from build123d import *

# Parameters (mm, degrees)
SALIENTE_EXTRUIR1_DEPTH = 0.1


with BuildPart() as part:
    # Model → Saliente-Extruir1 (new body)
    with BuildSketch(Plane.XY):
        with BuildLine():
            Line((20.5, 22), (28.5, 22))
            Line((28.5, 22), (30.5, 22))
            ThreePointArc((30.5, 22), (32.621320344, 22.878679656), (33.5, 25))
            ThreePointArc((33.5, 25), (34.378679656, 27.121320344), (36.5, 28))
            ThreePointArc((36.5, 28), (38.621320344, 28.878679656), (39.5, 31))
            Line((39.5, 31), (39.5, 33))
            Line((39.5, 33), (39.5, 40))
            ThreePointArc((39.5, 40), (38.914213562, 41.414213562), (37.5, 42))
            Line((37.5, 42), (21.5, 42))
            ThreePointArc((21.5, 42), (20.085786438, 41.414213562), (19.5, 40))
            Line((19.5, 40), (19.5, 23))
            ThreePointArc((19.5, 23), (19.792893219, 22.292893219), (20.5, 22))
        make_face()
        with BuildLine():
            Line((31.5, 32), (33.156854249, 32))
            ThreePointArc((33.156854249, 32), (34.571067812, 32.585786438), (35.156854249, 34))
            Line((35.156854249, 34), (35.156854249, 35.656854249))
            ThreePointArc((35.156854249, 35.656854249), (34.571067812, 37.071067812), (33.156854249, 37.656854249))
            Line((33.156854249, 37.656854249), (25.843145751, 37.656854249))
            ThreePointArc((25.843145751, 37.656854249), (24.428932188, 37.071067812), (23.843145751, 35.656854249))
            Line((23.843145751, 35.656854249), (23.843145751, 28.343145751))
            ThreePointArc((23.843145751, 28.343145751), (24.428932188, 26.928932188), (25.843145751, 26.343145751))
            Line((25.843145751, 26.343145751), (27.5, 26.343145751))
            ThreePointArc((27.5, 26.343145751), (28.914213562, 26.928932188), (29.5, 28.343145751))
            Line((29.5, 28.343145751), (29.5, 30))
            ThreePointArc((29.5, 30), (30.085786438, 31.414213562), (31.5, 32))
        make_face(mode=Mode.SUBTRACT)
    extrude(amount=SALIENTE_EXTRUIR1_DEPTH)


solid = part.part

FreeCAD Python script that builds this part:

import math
import FreeCAD as App
import Part
import Sketcher
from FreeCAD import Vector

doc = App.newDocument("Part")
params = doc.addObject("Spreadsheet::Sheet", "Params")
for row, (alias, value) in enumerate([
    ("sketch1_radius", "3 mm"),
    ("sketch1_radius2", "2 mm"),
    ("sketch1_radius3", "1 mm"),
    ("sketch1_width", "10 mm"),
    ("sketch1_height", "9 mm"),
    ("pad1_length", "0.1 mm"),
], start=1):
    params.set(f"A{row}", alias)
    params.set(f"B{row}", "=" + value)
    params.setAlias(f"B{row}", alias)

body = doc.addObject("PartDesign::Body", "Body")

# Sketch on XY plane
sketch1 = doc.addObject("Sketcher::SketchObject", "Sketch")
body.addObject(sketch1)
sketch1.AttachmentSupport = (doc.XY_Plane, [""])
sketch1.MapMode = "FlatFace"
sketch1.addGeometry([
    Part.LineSegment(Vector(20.5, 22, 0), Vector(30.5, 22, 0)),  # 0
    Part.ArcOfCircle(Part.Circle(Vector(30.5, 25, 0), Vector(0, 0, 1), 3), math.radians(-90), math.radians(0)),  # 1
    Part.ArcOfCircle(Part.Circle(Vector(36.5, 25, 0), Vector(0, 0, 1), 3), math.radians(90), math.radians(180)),  # 2
    Part.ArcOfCircle(Part.Circle(Vector(36.5, 31, 0), Vector(0, 0, 1), 3), math.radians(-90), math.radians(0)),  # 3
    Part.LineSegment(Vector(39.5, 31, 0), Vector(39.5, 40, 0)),  # 4
    Part.ArcOfCircle(Part.Circle(Vector(37.5, 40, 0), Vector(0, 0, 1), 2), math.radians(0), math.radians(90)),  # 5
    Part.LineSegment(Vector(37.5, 42, 0), Vector(21.5, 42, 0)),  # 6
    Part.ArcOfCircle(Part.Circle(Vector(21.5, 40, 0), Vector(0, 0, 1), 2), math.radians(90), math.radians(180)),  # 7
    Part.LineSegment(Vector(19.5, 40, 0), Vector(19.5, 23, 0)),  # 8
    Part.ArcOfCircle(Part.Circle(Vector(20.5, 23, 0), Vector(0, 0, 1), 1), math.radians(-180), math.radians(-90)),  # 9
    Part.LineSegment(Vector(33.2, 32, 0), Vector(31.5, 32, 0)),  # 10
    Part.ArcOfCircle(Part.Circle(Vector(31.5, 30, 0), Vector(0, 0, 1), 2), math.radians(90), math.radians(180)),  # 11
    Part.LineSegment(Vector(29.5, 30, 0), Vector(29.5, 28.3, 0)),  # 12
    Part.ArcOfCircle(Part.Circle(Vector(27.5, 28.3, 0), Vector(0, 0, 1), 2), math.radians(-90), math.radians(0)),  # 13
    Part.LineSegment(Vector(27.5, 26.3, 0), Vector(25.8, 26.3, 0)),  # 14
    Part.ArcOfCircle(Part.Circle(Vector(25.8, 28.3, 0), Vector(0, 0, 1), 2), math.radians(180), math.radians(270)),  # 15
    Part.LineSegment(Vector(23.8, 28.3, 0), Vector(23.8, 35.7, 0)),  # 16
    Part.ArcOfCircle(Part.Circle(Vector(25.8, 35.7, 0), Vector(0, 0, 1), 2), math.radians(90), math.radians(180)),  # 17
    Part.LineSegment(Vector(25.8, 37.7, 0), Vector(33.2, 37.7, 0)),  # 18
    Part.ArcOfCircle(Part.Circle(Vector(33.2, 35.7, 0), Vector(0, 0, 1), 2), math.radians(0), math.radians(90)),  # 19
    Part.LineSegment(Vector(35.2, 35.7, 0), Vector(35.2, 34, 0)),  # 20
    Part.ArcOfCircle(Part.Circle(Vector(33.2, 34, 0), Vector(0, 0, 1), 2), math.radians(-90), math.radians(0)),  # 21
], False)
sketch1.addConstraint([
    Sketcher.Constraint("Tangent", 0, 2, 1, 1),
    Sketcher.Constraint("Tangent", 1, 2, 2, 2),
    Sketcher.Constraint("Tangent", 2, 1, 3, 1),
    Sketcher.Constraint("Tangent", 3, 2, 4, 1),
    Sketcher.Constraint("Tangent", 4, 2, 5, 1),
    Sketcher.Constraint("Tangent", 5, 2, 6, 1),
    Sketcher.Constraint("Tangent", 6, 2, 7, 1),
    Sketcher.Constraint("Tangent", 7, 2, 8, 1),
    Sketcher.Constraint("Tangent", 8, 2, 9, 1),
    Sketcher.Constraint("Tangent", 9, 2, 0, 1),
    Sketcher.Constraint("Tangent", 10, 2, 11, 1),
    Sketcher.Constraint("Tangent", 11, 2, 12, 1),
    Sketcher.Constraint("Tangent", 12, 2, 13, 2),
    Sketcher.Constraint("Tangent", 13, 1, 14, 1),
    Sketcher.Constraint("Tangent", 14, 2, 15, 2),
    Sketcher.Constraint("Tangent", 15, 1, 16, 1),
    Sketcher.Constraint("Tangent", 16, 2, 17, 2),
    Sketcher.Constraint("Tangent", 17, 1, 18, 1),
    Sketcher.Constraint("Tangent", 18, 2, 19, 2),
    Sketcher.Constraint("Tangent", 19, 1, 20, 1),
    Sketcher.Constraint("Tangent", 20, 2, 21, 2),
    Sketcher.Constraint("Tangent", 21, 1, 10, 1),
    Sketcher.Constraint("Horizontal", 0),
    Sketcher.Constraint("Vertical", 4),
    Sketcher.Constraint("Horizontal", 6),
    Sketcher.Constraint("Vertical", 8),
    Sketcher.Constraint("Horizontal", 10),
    Sketcher.Constraint("Vertical", 12),
    Sketcher.Constraint("Horizontal", 14),
    Sketcher.Constraint("Vertical", 16),
    Sketcher.Constraint("Horizontal", 18),
    Sketcher.Constraint("Vertical", 20),
    Sketcher.Constraint("Equal", 1, 2),
    Sketcher.Constraint("Equal", 2, 3),
    Sketcher.Constraint("Equal", 5, 7),
    Sketcher.Constraint("Equal", 7, 11),
    Sketcher.Constraint("Equal", 11, 13),
    Sketcher.Constraint("Equal", 13, 15),
    Sketcher.Constraint("Equal", 15, 17),
    Sketcher.Constraint("Equal", 17, 19),
    Sketcher.Constraint("Equal", 19, 21),
    Sketcher.Constraint("Horizontal", 1, 3, 2, 3),
    Sketcher.Constraint("Vertical", 2, 3, 3, 3),
    Sketcher.Constraint("Equal", 10, 14),
    Sketcher.Constraint("Equal", 14, 12),
    Sketcher.Constraint("Equal", 18, 16),
    Sketcher.Constraint("Radius", 1, 3.0),
    Sketcher.Constraint("Radius", 5, 2.0),
    Sketcher.Constraint("Radius", 9, 1.0),
    Sketcher.Constraint("DistanceX", 0, 1, 0, 2, 10.0),
    Sketcher.Constraint("DistanceY", 4, 1, 4, 2, 9.0),
    Sketcher.Constraint("DistanceY", -1, 1, 1, 3, 25.0),
    Sketcher.Constraint("DistanceY", -1, 1, 11, 3, 30.0),
    Sketcher.Constraint("DistanceX", 1, 3, 11, 3, 1.0),
    Sketcher.Constraint("DistanceX", -1, 1, 1, 3, 30.5),
    Sketcher.Constraint("DistanceX", 18, 1, 18, 2, 7.313708),
])
sketch1.setExpression("Constraints[46]", "Params.sketch1_radius")
sketch1.setExpression("Constraints[47]", "Params.sketch1_radius2")
sketch1.setExpression("Constraints[48]", "Params.sketch1_radius3")
sketch1.setExpression("Constraints[49]", "Params.sketch1_width")
sketch1.setExpression("Constraints[50]", "Params.sketch1_height")
pad1 = doc.addObject("PartDesign::Pad", "Pad")
body.addObject(pad1)
pad1.Profile = sketch1
pad1.setExpression("Length", "Params.pad1_length")

doc.recompute()
